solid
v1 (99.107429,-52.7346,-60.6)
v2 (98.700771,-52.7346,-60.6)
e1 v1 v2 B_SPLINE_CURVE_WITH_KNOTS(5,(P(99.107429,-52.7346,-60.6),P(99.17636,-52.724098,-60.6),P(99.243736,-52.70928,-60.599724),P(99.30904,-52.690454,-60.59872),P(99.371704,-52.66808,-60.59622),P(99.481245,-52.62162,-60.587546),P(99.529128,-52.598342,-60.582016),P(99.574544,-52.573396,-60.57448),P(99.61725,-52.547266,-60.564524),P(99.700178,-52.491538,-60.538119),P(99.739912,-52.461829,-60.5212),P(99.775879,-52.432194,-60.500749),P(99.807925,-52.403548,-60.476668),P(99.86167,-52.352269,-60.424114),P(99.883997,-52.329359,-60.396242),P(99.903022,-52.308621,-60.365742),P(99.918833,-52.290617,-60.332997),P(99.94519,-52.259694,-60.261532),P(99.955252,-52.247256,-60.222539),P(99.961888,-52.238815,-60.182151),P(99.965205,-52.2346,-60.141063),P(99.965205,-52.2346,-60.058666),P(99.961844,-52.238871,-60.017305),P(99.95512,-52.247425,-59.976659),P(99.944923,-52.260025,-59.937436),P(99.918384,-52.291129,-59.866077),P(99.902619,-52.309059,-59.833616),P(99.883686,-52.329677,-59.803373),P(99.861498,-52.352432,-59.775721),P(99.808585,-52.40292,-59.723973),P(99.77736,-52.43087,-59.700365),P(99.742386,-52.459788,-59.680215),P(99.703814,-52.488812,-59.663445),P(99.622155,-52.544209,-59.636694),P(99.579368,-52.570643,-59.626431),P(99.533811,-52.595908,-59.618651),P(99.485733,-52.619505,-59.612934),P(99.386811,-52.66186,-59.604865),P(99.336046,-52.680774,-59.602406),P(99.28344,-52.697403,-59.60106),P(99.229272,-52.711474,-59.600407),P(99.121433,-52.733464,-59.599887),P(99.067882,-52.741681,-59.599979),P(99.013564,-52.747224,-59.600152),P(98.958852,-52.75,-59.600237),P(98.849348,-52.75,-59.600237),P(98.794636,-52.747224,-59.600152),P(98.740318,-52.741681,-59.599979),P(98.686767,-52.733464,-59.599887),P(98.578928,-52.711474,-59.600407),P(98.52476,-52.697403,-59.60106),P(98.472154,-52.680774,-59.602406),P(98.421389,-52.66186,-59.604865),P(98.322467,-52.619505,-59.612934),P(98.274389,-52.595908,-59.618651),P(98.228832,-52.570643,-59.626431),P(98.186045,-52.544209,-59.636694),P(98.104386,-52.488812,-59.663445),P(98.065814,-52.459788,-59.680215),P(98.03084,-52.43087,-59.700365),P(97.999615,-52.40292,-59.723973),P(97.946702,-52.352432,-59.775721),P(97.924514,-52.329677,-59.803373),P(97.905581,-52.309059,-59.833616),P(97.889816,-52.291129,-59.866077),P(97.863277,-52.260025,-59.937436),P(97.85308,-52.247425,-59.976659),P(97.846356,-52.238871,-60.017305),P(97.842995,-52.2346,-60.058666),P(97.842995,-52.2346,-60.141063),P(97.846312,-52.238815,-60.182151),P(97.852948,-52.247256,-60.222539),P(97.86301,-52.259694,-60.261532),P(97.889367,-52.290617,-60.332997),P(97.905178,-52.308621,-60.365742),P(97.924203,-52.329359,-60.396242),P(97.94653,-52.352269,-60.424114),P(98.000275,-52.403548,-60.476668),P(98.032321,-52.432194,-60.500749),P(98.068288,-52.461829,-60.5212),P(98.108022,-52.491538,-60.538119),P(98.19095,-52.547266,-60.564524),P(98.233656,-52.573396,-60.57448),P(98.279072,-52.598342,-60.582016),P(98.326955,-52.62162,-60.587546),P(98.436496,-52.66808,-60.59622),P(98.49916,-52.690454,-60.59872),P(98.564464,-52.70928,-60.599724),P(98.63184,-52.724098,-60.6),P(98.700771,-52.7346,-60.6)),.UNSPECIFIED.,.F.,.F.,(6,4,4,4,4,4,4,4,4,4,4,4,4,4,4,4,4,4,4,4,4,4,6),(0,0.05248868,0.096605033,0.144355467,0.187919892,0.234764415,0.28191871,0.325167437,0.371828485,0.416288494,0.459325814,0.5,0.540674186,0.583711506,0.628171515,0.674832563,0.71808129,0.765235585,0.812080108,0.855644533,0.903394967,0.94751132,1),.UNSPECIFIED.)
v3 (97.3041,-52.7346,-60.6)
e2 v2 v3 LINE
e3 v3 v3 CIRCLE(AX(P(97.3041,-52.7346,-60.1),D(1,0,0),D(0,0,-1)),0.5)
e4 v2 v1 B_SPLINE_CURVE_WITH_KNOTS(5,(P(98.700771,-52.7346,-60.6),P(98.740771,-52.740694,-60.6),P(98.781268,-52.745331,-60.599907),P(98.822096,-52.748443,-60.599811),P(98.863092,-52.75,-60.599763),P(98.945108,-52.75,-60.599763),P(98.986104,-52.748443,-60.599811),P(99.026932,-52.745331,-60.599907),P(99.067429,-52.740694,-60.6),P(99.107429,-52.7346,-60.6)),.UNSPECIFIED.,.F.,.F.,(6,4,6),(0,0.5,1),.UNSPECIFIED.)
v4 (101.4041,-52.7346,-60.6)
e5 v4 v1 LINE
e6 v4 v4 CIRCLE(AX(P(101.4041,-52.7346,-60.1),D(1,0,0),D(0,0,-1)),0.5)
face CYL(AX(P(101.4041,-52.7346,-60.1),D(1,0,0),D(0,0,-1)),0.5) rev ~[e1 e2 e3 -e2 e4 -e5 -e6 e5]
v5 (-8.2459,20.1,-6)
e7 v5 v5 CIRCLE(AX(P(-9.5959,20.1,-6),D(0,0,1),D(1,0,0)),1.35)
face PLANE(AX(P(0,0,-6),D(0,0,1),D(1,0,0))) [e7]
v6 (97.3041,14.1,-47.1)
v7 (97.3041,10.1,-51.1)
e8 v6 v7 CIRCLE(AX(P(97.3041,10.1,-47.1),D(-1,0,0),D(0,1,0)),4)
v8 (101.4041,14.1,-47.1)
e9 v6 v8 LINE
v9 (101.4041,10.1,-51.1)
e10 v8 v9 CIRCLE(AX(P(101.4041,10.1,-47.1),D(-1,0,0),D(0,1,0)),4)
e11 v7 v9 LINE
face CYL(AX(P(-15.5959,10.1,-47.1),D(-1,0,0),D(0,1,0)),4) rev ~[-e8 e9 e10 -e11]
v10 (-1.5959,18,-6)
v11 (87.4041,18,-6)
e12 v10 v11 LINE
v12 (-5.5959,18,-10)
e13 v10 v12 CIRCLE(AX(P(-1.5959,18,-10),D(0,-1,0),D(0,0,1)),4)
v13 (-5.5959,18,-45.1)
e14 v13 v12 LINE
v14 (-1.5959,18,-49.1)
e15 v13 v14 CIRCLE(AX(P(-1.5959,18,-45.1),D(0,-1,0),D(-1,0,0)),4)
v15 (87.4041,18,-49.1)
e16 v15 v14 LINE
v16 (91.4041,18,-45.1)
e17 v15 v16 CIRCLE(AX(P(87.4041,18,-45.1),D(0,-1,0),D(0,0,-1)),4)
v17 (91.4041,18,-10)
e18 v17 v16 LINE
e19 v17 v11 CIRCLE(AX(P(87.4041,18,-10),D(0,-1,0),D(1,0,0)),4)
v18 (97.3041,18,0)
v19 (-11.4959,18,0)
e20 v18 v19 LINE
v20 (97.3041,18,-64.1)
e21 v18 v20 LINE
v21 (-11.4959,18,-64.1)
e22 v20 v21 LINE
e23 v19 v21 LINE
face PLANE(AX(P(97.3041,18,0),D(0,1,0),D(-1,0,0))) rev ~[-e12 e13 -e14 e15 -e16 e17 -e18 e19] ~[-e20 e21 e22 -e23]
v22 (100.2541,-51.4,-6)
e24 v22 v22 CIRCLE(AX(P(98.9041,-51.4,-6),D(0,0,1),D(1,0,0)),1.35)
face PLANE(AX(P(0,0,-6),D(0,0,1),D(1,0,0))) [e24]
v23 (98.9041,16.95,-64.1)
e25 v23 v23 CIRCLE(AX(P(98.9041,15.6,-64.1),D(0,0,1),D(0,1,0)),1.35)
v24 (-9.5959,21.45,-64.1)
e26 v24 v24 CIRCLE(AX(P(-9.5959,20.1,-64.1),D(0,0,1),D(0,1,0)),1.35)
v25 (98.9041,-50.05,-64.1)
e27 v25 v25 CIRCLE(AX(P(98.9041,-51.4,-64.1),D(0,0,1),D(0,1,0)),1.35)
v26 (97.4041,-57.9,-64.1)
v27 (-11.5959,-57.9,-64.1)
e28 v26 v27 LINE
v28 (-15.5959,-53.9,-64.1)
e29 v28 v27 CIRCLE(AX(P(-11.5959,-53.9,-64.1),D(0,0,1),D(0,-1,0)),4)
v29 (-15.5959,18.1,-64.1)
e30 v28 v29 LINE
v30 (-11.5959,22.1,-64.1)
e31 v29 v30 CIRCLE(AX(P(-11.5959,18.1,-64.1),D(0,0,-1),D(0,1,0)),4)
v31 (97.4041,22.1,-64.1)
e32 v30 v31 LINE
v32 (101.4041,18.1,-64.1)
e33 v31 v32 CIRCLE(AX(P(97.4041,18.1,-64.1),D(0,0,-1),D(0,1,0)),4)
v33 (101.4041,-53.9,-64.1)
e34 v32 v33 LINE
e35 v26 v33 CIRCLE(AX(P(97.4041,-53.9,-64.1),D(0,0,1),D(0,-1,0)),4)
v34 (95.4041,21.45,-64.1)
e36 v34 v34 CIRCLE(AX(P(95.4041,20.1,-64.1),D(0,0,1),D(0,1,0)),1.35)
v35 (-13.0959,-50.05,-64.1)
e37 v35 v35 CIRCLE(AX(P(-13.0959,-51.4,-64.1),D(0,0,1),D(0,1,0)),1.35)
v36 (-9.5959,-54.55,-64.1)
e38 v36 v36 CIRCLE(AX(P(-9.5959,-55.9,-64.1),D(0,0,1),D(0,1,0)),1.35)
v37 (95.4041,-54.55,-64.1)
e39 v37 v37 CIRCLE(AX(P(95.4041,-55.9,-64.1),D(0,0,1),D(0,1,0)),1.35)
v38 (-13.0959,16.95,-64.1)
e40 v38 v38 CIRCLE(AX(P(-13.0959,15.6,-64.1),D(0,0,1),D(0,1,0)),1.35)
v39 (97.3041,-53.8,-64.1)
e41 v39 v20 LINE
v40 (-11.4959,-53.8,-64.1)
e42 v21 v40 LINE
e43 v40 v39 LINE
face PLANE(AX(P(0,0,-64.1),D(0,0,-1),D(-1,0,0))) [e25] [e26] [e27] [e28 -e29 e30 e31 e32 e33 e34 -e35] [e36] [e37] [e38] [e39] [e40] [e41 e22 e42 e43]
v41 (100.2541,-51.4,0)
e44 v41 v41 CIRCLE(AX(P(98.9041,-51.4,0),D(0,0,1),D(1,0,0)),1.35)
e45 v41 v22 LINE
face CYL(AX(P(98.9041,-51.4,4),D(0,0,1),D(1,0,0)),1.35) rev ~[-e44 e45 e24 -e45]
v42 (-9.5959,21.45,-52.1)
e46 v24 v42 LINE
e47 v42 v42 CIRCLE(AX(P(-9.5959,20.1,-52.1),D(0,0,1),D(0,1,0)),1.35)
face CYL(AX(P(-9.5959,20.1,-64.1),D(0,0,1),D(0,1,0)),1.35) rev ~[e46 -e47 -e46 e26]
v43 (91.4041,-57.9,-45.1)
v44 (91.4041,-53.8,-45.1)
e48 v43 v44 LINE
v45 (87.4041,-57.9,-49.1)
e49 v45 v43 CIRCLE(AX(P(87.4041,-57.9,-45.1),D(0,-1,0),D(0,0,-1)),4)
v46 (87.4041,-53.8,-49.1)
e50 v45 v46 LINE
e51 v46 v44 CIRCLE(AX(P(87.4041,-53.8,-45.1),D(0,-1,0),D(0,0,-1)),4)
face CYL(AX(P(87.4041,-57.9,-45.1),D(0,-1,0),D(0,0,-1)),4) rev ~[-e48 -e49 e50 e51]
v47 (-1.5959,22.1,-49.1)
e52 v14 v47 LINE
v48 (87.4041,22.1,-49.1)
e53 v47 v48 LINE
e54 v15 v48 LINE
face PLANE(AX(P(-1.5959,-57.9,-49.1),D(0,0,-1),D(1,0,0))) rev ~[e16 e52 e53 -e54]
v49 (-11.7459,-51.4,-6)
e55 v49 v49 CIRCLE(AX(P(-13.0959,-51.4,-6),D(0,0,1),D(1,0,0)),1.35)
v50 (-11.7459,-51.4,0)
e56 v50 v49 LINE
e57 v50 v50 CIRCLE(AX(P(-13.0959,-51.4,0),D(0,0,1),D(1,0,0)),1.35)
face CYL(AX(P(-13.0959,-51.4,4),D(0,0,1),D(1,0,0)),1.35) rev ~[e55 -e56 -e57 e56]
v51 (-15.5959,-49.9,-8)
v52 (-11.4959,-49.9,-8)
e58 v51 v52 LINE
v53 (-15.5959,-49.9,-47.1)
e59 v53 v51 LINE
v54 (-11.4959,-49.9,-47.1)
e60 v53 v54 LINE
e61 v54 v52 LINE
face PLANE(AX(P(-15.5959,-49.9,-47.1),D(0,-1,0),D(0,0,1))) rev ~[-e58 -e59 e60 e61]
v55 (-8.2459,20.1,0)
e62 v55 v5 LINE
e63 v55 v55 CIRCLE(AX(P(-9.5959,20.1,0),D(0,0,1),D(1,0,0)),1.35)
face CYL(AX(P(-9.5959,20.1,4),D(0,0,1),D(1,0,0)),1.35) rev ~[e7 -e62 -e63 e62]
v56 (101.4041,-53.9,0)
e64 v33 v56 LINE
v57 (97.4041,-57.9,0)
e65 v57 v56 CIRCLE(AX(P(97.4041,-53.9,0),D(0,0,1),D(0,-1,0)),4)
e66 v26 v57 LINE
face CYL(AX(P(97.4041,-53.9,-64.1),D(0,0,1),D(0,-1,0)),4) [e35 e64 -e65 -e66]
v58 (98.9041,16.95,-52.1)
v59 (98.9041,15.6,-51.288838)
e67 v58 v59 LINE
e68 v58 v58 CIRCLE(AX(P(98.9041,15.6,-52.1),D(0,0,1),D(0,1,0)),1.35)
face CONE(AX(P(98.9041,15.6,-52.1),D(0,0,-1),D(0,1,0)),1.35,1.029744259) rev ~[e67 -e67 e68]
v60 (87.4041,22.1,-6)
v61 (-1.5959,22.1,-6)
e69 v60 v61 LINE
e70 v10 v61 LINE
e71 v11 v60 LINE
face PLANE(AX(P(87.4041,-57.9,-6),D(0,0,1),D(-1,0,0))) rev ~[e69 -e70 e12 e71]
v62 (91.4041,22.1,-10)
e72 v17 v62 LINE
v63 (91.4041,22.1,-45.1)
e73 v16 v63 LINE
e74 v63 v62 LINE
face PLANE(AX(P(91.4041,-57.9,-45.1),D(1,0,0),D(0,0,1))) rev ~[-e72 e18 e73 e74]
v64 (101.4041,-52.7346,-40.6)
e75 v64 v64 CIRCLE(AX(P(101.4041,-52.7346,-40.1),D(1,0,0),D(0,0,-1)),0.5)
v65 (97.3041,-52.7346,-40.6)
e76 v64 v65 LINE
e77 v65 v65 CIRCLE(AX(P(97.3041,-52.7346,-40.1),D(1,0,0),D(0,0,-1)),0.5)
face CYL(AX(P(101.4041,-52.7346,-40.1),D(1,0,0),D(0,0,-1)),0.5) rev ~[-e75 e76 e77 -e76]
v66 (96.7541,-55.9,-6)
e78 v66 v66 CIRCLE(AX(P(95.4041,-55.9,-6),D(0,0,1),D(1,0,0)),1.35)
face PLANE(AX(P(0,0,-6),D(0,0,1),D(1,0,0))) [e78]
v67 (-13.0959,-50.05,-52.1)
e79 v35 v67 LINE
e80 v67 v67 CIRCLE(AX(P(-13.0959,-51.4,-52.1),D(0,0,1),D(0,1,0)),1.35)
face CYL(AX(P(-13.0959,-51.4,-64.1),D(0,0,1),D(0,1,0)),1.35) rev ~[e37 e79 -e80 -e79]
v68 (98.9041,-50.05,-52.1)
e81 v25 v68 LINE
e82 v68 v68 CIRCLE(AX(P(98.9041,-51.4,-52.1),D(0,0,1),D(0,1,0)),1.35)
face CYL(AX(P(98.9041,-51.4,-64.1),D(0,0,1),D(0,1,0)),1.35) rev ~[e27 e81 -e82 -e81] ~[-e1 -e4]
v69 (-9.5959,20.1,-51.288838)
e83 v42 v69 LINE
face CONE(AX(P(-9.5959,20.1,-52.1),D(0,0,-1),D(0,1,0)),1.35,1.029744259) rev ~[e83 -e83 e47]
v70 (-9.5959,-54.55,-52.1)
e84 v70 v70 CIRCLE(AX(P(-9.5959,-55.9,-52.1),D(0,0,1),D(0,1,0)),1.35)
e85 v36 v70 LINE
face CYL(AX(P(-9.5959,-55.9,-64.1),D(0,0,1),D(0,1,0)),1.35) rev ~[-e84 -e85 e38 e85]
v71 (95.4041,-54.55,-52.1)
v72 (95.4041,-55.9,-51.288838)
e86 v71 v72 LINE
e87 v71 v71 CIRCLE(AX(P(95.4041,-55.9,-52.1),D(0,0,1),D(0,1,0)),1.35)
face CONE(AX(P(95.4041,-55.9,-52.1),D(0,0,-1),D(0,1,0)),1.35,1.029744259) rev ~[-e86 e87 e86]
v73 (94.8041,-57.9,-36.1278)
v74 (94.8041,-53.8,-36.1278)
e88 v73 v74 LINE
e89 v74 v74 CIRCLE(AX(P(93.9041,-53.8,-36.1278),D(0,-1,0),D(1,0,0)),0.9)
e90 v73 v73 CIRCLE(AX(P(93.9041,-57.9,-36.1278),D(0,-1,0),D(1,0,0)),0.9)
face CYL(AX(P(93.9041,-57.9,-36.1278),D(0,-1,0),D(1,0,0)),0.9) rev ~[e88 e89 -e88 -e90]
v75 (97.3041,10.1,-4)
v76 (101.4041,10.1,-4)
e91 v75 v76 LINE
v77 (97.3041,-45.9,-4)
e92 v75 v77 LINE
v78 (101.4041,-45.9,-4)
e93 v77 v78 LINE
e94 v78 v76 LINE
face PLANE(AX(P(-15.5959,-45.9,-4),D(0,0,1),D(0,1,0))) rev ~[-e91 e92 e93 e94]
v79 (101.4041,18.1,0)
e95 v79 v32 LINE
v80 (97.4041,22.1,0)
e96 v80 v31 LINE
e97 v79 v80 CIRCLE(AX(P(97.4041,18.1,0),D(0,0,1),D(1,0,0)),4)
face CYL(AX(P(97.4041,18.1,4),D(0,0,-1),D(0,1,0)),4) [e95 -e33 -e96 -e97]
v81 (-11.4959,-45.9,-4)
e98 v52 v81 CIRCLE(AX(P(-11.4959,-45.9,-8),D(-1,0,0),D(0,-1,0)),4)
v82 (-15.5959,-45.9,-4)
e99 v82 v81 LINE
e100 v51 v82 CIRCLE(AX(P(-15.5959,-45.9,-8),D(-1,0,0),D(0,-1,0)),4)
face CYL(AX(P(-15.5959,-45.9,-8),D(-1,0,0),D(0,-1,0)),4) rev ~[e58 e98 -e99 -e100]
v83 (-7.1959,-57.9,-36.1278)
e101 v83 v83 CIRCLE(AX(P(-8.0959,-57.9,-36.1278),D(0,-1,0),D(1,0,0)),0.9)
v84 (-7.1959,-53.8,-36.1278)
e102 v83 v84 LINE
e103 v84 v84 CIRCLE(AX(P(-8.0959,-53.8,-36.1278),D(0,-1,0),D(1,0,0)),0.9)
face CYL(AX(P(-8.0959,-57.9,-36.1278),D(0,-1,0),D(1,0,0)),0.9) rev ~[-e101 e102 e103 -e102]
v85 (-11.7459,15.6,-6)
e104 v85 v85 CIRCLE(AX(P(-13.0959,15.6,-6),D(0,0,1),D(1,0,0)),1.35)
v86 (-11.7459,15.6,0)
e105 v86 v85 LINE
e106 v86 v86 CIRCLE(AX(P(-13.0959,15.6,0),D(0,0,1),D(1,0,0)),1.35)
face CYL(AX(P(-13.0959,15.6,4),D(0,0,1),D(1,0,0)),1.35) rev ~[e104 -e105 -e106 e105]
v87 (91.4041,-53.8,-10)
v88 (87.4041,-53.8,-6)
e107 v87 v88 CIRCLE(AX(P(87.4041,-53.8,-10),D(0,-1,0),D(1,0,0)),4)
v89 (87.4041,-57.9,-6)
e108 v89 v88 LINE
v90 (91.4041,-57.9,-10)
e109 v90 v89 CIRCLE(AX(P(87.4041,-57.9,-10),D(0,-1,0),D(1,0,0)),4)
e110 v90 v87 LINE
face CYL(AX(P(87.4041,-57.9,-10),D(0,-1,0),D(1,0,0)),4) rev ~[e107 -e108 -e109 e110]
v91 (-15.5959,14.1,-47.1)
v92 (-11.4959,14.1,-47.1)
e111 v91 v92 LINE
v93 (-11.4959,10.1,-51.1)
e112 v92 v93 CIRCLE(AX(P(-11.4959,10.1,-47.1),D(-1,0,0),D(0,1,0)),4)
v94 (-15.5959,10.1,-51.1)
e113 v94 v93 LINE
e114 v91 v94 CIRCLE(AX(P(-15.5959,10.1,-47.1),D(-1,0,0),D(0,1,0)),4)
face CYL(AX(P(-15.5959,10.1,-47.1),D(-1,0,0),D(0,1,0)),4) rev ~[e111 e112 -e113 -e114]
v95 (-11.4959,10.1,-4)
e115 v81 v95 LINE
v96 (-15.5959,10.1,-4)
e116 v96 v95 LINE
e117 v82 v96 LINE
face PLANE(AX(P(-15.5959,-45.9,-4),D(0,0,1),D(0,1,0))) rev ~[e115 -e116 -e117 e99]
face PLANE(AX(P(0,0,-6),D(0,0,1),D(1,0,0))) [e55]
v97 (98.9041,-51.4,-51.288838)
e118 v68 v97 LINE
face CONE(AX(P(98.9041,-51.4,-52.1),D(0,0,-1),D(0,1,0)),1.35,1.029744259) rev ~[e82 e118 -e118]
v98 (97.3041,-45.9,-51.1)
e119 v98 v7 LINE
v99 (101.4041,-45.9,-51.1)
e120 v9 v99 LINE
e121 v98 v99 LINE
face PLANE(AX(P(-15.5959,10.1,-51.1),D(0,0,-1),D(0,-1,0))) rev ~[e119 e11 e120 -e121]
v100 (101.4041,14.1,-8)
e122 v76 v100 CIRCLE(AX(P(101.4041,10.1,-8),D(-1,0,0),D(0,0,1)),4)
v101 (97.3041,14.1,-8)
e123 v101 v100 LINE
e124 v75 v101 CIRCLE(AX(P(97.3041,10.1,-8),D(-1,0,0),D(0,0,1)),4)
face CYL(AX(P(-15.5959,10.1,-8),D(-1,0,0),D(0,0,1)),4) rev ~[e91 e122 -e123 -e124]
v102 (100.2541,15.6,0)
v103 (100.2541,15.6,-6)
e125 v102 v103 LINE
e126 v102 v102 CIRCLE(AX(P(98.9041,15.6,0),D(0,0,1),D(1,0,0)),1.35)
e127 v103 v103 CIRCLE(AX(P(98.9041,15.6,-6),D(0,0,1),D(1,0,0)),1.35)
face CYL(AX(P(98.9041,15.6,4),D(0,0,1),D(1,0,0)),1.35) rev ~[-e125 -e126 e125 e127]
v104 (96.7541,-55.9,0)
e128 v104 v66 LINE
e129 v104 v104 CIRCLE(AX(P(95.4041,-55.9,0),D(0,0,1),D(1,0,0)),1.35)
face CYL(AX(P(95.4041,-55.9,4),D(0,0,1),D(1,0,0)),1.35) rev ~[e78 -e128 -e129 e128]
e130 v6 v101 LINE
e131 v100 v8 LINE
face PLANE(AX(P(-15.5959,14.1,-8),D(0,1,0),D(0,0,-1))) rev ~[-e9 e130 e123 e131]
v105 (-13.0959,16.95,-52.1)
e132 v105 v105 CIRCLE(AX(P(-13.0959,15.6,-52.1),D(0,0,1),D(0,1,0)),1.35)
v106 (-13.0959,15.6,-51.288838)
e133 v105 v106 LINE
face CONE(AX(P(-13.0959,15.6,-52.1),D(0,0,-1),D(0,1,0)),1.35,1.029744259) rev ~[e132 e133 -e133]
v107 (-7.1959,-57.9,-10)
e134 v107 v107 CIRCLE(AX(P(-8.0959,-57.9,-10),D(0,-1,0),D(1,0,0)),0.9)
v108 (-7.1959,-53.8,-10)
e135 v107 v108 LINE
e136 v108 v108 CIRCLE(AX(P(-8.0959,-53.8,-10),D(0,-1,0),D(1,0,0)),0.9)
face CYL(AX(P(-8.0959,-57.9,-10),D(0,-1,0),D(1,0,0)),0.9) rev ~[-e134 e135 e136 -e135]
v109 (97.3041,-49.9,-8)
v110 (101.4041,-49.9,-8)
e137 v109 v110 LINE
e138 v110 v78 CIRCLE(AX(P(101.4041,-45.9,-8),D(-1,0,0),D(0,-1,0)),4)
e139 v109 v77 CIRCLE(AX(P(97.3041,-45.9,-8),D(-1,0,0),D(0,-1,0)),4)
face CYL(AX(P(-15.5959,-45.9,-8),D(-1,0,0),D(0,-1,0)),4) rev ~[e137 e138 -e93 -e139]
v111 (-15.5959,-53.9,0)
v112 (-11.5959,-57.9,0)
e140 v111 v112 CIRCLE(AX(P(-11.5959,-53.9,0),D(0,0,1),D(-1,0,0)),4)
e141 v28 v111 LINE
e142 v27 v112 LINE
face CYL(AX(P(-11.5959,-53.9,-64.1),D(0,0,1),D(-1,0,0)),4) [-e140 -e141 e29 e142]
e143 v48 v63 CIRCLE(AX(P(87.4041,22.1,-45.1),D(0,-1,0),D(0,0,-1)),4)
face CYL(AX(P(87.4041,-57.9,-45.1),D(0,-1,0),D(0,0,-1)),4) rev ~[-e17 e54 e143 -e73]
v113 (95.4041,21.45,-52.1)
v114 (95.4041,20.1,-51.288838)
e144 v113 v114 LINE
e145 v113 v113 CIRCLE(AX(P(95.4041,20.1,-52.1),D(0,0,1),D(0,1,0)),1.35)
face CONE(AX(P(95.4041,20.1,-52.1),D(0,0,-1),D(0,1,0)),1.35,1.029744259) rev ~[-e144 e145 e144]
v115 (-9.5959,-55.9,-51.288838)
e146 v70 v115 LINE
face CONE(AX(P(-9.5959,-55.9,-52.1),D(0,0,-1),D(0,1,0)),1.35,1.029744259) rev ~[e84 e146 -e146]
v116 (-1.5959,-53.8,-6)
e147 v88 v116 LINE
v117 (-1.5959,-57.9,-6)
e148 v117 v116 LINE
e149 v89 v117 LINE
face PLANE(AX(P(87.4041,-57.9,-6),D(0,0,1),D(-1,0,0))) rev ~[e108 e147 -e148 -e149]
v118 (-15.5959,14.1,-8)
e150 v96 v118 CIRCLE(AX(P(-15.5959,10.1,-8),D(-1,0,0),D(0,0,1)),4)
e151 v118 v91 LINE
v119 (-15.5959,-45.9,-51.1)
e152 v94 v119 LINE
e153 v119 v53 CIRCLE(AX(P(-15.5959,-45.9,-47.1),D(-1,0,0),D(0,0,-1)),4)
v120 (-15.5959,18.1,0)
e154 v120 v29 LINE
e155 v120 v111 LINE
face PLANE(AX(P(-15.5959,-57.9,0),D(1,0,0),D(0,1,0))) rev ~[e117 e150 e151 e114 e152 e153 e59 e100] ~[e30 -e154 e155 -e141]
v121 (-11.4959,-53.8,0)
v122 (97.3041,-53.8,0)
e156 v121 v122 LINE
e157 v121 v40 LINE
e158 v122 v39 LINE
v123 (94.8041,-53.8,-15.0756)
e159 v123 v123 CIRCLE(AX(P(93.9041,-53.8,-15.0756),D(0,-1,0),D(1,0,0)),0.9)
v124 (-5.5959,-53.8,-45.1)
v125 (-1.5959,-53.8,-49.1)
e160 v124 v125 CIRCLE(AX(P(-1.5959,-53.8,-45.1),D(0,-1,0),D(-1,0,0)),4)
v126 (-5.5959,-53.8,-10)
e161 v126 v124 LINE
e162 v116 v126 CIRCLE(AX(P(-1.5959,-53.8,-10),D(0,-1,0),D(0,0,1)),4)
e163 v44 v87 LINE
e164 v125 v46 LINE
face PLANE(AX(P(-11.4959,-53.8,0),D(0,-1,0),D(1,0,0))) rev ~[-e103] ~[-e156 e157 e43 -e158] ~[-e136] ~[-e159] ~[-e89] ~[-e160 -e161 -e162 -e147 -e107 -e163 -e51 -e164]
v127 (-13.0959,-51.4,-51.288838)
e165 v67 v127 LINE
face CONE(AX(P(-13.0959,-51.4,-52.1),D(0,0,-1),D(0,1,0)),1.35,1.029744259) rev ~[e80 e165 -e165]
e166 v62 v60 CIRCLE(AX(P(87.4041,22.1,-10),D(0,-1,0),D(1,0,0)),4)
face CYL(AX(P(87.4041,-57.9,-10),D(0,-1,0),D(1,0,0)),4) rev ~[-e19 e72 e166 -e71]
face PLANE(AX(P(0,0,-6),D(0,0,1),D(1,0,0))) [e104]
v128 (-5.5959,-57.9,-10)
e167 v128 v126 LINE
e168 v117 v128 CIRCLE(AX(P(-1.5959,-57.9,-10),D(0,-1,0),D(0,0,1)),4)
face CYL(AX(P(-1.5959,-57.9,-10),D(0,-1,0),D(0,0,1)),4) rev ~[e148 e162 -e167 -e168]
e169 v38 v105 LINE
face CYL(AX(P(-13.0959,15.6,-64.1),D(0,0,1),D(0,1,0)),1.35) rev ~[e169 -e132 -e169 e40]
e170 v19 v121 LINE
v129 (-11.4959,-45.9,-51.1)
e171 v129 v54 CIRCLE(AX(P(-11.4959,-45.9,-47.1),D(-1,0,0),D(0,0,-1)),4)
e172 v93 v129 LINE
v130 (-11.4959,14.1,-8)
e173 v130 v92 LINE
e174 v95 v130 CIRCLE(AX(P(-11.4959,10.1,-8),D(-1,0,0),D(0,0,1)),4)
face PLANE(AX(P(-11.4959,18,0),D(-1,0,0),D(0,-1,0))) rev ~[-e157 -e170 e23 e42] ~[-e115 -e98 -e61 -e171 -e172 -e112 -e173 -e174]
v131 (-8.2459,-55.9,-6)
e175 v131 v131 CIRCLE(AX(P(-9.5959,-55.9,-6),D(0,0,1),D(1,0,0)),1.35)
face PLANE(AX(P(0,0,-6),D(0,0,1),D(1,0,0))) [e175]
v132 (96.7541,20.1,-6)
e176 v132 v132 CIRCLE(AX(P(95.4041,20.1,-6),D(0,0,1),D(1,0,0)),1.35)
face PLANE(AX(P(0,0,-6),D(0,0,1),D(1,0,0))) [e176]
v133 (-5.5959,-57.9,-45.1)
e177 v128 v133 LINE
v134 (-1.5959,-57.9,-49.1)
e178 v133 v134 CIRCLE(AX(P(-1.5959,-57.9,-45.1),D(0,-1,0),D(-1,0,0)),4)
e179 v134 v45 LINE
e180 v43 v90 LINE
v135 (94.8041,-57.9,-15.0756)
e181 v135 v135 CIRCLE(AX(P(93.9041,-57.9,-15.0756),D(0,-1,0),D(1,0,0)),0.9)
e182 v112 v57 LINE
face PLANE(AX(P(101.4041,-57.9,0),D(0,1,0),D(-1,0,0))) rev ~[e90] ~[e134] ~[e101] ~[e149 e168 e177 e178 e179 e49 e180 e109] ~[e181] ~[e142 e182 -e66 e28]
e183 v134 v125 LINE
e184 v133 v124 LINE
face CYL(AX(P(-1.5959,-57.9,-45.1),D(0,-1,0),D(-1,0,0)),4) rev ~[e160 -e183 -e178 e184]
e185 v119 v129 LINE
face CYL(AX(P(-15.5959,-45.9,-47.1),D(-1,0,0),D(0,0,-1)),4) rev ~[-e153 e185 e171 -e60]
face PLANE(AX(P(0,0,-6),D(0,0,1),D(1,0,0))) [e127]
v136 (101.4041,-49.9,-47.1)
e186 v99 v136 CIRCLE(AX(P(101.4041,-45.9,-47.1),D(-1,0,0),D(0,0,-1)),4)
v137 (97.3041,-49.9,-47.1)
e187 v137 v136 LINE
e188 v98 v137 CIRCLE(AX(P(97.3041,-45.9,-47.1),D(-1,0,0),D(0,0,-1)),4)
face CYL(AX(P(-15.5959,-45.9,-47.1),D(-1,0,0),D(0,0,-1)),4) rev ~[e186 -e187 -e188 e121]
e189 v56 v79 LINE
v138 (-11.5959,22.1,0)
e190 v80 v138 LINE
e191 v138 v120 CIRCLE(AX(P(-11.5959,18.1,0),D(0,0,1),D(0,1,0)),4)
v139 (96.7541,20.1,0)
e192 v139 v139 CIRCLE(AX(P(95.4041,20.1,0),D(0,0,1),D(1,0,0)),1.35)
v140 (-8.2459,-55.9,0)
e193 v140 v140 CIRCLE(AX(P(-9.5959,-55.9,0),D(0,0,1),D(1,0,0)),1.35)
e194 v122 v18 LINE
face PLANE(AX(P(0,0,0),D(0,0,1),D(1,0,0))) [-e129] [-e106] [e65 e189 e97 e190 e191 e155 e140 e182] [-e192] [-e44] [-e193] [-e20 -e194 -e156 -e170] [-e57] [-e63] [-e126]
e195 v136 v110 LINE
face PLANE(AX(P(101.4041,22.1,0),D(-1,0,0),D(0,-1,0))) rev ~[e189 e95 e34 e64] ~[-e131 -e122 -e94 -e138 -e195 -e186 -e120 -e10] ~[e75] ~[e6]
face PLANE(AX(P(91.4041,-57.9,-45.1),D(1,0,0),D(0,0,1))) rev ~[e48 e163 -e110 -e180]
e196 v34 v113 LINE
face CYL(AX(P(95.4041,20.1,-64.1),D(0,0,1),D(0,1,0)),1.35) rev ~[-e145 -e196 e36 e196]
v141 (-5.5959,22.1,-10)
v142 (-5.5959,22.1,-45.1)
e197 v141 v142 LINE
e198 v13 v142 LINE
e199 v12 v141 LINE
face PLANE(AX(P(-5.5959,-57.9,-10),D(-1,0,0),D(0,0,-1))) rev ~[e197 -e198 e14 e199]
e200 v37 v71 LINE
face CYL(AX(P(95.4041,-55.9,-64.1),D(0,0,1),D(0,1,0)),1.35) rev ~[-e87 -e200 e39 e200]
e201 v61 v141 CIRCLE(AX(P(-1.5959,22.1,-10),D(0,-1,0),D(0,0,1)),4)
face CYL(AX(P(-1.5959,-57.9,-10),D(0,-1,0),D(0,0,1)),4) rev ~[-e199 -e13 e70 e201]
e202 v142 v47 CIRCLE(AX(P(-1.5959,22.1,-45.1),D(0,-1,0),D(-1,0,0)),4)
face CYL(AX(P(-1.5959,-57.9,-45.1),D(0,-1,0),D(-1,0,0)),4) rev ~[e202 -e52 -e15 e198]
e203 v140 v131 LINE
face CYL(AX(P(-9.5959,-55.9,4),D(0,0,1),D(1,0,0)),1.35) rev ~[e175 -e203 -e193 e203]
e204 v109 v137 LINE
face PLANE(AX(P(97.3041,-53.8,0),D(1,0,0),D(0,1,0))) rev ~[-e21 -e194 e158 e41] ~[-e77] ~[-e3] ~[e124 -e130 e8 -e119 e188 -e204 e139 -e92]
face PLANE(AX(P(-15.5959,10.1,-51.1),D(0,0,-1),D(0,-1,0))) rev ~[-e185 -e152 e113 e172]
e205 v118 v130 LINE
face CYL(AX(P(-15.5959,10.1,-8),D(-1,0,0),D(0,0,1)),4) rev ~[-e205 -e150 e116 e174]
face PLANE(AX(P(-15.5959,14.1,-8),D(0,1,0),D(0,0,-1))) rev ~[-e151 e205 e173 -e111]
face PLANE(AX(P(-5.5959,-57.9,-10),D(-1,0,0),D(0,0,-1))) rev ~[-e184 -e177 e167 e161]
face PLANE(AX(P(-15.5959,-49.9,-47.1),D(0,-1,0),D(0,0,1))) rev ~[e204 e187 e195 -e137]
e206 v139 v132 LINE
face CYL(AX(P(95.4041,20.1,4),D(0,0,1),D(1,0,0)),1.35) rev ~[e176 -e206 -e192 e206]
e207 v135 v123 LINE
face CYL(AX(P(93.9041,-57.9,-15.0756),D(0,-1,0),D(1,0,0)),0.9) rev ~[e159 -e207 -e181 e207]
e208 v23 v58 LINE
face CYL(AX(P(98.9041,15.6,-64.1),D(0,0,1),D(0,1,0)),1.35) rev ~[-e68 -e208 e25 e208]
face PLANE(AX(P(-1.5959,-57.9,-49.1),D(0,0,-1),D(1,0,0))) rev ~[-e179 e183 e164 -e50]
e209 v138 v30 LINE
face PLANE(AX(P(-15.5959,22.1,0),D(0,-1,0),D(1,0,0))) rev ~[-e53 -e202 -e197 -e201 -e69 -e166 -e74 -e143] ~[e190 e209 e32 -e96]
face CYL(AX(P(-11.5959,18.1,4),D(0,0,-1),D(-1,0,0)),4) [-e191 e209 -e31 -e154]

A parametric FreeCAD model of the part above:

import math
import FreeCAD as App
import Part
import Sketcher

V = App.Vector
Q = App.Units.Quantity


def edges_at(feature, points):
    """Names of the edges that pass closest to the given points."""
    edges = feature.Shape.Edges
    near = lambda p: min(range(len(edges)), key=lambda i: edges[i].distToShape(Part.Vertex(*p))[0])
    return sorted({f"Edge{near(p) + 1}" for p in points})


def add_polygon(sketch, points):
    """Adds a closed chain of lines whose ends are joined by coincident constraints."""
    first, n = sketch.GeometryCount, len(points)
    for a, b in zip(points, points[1:] + points[:1]):
        sketch.addGeometry(Part.LineSegment(App.Vector(*a, 0), App.Vector(*b, 0)), False)
    for i in range(n):
        sketch.addConstraint(Sketcher.Constraint("Coincident", first + i, 2, first + (i + 1) % n, 1))

doc = App.newDocument("Part")
params = doc.addObject("Spreadsheet::Sheet", "Params")
for row, (alias, value) in enumerate([
    ("sketch1_height", "80 mm"),
    ("sketch1_width", "117 mm"),
    ("pad1_length", "4 mm"),
    ("sketch2_height", "71.8 mm"),
    ("sketch2_width", "117 mm"),
    ("pad2_length", "64.1 mm"),
    ("sketch3_radius", "4 mm"),
    ("sketch3_width", "89 mm"),
    ("sketch3_height", "35.1 mm"),
    ("sketch4_radius", "4 mm"),
    ("sketch4_width", "56 mm"),
    ("sketch4_height", "39.1 mm"),
    ("fillet_radius", "4 mm"),
    ("sketch5_diameter", "2.7 mm"),
    ("hole_diameter", "2.7 mm"),
    ("hole_depth", "12 mm"),
    ("sketch6_diameter", "2.7 mm"),
    ("pocket3_length", "10 mm"),
    ("sketch7_diameter", "1.8 mm"),
    ("pocket4_length", "10 mm"),
    ("sketch8_radius", "4 mm"),
    ("sketch8_width", "109 mm"),
    ("sketch8_height", "72 mm"),
    ("pocket5_length", "4 mm"),
    ("sketch9_diameter", "1 mm"),
    ("pocket6_length", "10 mm"),
], start=1):
    params.set(f"A{row}", alias)
    params.set(f"B{row}", "=" + value)
    params.setAlias(f"B{row}", alias)

body = doc.addObject("PartDesign::Body", "Body")

sketch1 = body.newObject("Sketcher::SketchObject", "Sketch")
sketch1.AttachmentSupport = (doc.getObject("XY_Plane"), [""])
sketch1.MapMode = "FlatFace"
add_polygon(sketch1, [(101, 22), (-16, 22), (-16, -58), (101, -58)])
sketch1.addConstraint([
    Sketcher.Constraint("Horizontal", 0),
    Sketcher.Constraint("Vertical", 1),
    Sketcher.Constraint("Horizontal", 2),
    Sketcher.Constraint("Vertical", 3),
    Sketcher.Constraint("DistanceY", 1, 2, 1, 1, Q("80 mm")),
    Sketcher.Constraint("DistanceX", 0, 2, 0, 1, Q("117 mm")),
    Sketcher.Constraint("DistanceY", -1, 1, 0, 2, Q("22.1 mm")),
    Sketcher.Constraint("DistanceX", 0, 2, -1, 1, Q("15.596 mm")),
])
sketch1.setExpression("Constraints[8]", "Params.sketch1_height")
sketch1.setExpression("Constraints[9]", "Params.sketch1_width")
pad1 = body.newObject("PartDesign::Pad", "Pad")
pad1.Profile = sketch1
pad1.setExpression("Length", "Params.pad1_length")

sketch2 = body.newObject("Sketcher::SketchObject", "Sketch001")
sketch2.AttachmentSupport = (doc.getObject("XY_Plane"), [""])
sketch2.MapMode = "FlatFace"
add_polygon(sketch2, [(-16, -58), (-16, 22), (101, 22), (101, -58)])
add_polygon(sketch2, [(-11, -54), (97, -54), (97, 18), (-11, 18)])
sketch2.addConstraint([
    Sketcher.Constraint("Vertical", 0),
    Sketcher.Constraint("Horizontal", 1),
    Sketcher.Constraint("Vertical", 2),
    Sketcher.Constraint("Horizontal", 3),
    Sketcher.Constraint("Horizontal", 4),
    Sketcher.Constraint("Vertical", 5),
    Sketcher.Constraint("Horizontal", 6),
    Sketcher.Constraint("Vertical", 7),
    Sketcher.Constraint("DistanceY", 5, 1, 5, 2, Q("71.8 mm")),
    Sketcher.Constraint("DistanceX", 4, 2, 2, 2, Q("4.1 mm")),
    Sketcher.Constraint("DistanceY", 2, 2, 4, 2, Q("4.1 mm")),
    Sketcher.Constraint("DistanceY", 5, 2, 1, 2, Q("4.1 mm")),
    Sketcher.Constraint("DistanceX", 0, 2, 6, 2, Q("4.1 mm")),
    Sketcher.Constraint("DistanceX", 1, 1, 1, 2, Q("117 mm")),
    Sketcher.Constraint("DistanceY", -1, 1, 5, 2, Q("18 mm")),
    Sketcher.Constraint("DistanceX", 0, 2, -1, 1, Q("15.596 mm")),
])
sketch2.setExpression("Constraints[16]", "Params.sketch2_height")
sketch2.setExpression("Constraints[21]", "Params.sketch2_width")
pad2 = body.newObject("PartDesign::Pad", "Pad001")
pad2.Profile = sketch2
pad2.setExpression("Length", "Params.pad2_length")
pad2.Reversed = True

sketch3 = body.newObject("Sketcher::SketchObject", "Sketch002")
sketch3.AttachmentSupport = (doc.getObject("XZ_Plane"), [""])
sketch3.MapMode = "FlatFace"
sketch3.AttachmentOffset = App.Placement(V(0, 0, 57.9), App.Rotation())
sketch3.addGeometry([
    Part.ArcOfCircle(Part.Circle(V(87.4, -45.1, 0), V(0, 0, 1), 4), math.radians(-90), math.radians(0)),
    Part.LineSegment(V(91.4, -45.1, 0), V(91.4, -10, 0)),
    Part.ArcOfCircle(Part.Circle(V(87.4, -10, 0), V(0, 0, 1), 4), math.radians(0), math.radians(90)),
    Part.LineSegment(V(87.4, -6, 0), V(-1.6, -6, 0)),
    Part.ArcOfCircle(Part.Circle(V(-1.6, -10, 0), V(0, 0, 1), 4), math.radians(90), math.radians(180)),
    Part.LineSegment(V(-5.6, -10, 0), V(-5.6, -45.1, 0)),
    Part.ArcOfCircle(Part.Circle(V(-1.6, -45.1, 0), V(0, 0, 1), 4), math.radians(180), math.radians(270)),
    Part.LineSegment(V(-1.6, -49.1, 0), V(87.4, -49.1, 0)),
], False)
sketch3.addConstraint([
    Sketcher.Constraint("Tangent", 0, 2, 1, 1),
    Sketcher.Constraint("Tangent", 1, 2, 2, 1),
    Sketcher.Constraint("Tangent", 2, 2, 3, 1),
    Sketcher.Constraint("Tangent", 3, 2, 4, 1),
    Sketcher.Constraint("Tangent", 4, 2, 5, 1),
    Sketcher.Constraint("Tangent", 5, 2, 6, 1),
    Sketcher.Constraint("Tangent", 6, 2, 7, 1),
    Sketcher.Constraint("Tangent", 7, 2, 0, 1),
    Sketcher.Constraint("Vertical", 1),
    Sketcher.Constraint("Horizontal", 3),
    Sketcher.Constraint("Vertical", 5),
    Sketcher.Constraint("Horizontal", 7),
    Sketcher.Constraint("Equal", 0, 2),
    Sketcher.Constraint("Equal", 2, 4),
    Sketcher.Constraint("Equal", 4, 6),
    Sketcher.Constraint("Radius", 0, Q("4 mm")),
    Sketcher.Constraint("DistanceX", 3, 2, 3, 1, Q("89 mm")),
    Sketcher.Constraint("DistanceY", 1, 1, 1, 2, Q("35.1 mm")),
    Sketcher.Constraint("DistanceY", 2, 3, -1, 1, Q("10 mm")),
    Sketcher.Constraint("DistanceX", -1, 1, 0, 3, Q("87.404 mm")),
])
sketch3.setExpression("Constraints[15]", "Params.sketch3_radius")
sketch3.setExpression("Constraints[16]", "Params.sketch3_width")
sketch3.setExpression("Constraints[17]", "Params.sketch3_height")
pocket1 = body.newObject("PartDesign::Pocket", "Pocket")
pocket1.Profile = sketch3
pocket1.Type = "ThroughAll"

sketch4 = body.newObject("Sketcher::SketchObject", "Sketch003")
sketch4.AttachmentSupport = (doc.getObject("YZ_Plane"), [""])
sketch4.MapMode = "FlatFace"
sketch4.AttachmentOffset = App.Placement(V(0, 0, -15.5959), App.Rotation())
sketch4.addGeometry([
    Part.ArcOfCircle(Part.Circle(V(-45.9, -47.1, 0), V(0, 0, 1), 4), math.radians(180), math.radians(270)),
    Part.LineSegment(V(-49.9, -47.1, 0), V(-49.9, -8, 0)),
    Part.ArcOfCircle(Part.Circle(V(-45.9, -8, 0), V(0, 0, 1), 4), math.radians(90), math.radians(180)),
    Part.LineSegment(V(-45.9, -4, 0), V(10.1, -4, 0)),
    Part.ArcOfCircle(Part.Circle(V(10.1, -8, 0), V(0, 0, 1), 4), math.radians(0), math.radians(90)),
    Part.LineSegment(V(14.1, -8, 0), V(14.1, -47.1, 0)),
    Part.ArcOfCircle(Part.Circle(V(10.1, -47.1, 0), V(0, 0, 1), 4), math.radians(-90), math.radians(0)),
    Part.LineSegment(V(10.1, -51.1, 0), V(-45.9, -51.1, 0)),
], False)
sketch4.addConstraint([
    Sketcher.Constraint("Tangent", 0, 1, 1, 1),
    Sketcher.Constraint("Tangent", 1, 2, 2, 2),
    Sketcher.Constraint("Tangent", 2, 1, 3, 1),
    Sketcher.Constraint("Tangent", 3, 2, 4, 2),
    Sketcher.Constraint("Tangent", 4, 1, 5, 1),
    Sketcher.Constraint("Tangent", 5, 2, 6, 2),
    Sketcher.Constraint("Tangent", 6, 1, 7, 1),
    Sketcher.Constraint("Tangent", 7, 2, 0, 2),
    Sketcher.Constraint("Vertical", 1),
    Sketcher.Constraint("Horizontal", 3),
    Sketcher.Constraint("Vertical", 5),
    Sketcher.Constraint("Horizontal", 7),
    Sketcher.Constraint("Equal", 0, 2),
    Sketcher.Constraint("Equal", 2, 4),
    Sketcher.Constraint("Equal", 4, 6),
    Sketcher.Constraint("Radius", 0, Q("4 mm")),
    Sketcher.Constraint("DistanceY", 2, 3, -1, 1, Q("8 mm")),
    Sketcher.Constraint("DistanceX", 3, 1, 3, 2, Q("56 mm")),
    Sketcher.Constraint("DistanceY", 1, 1, 1, 2, Q("39.1 mm")),
    Sketcher.Constraint("DistanceX", 0, 3, -1, 1, Q("45.9 mm")),
])
sketch4.setExpression("Constraints[15]", "Params.sketch4_radius")
sketch4.setExpression("Constraints[17]", "Params.sketch4_width")
sketch4.setExpression("Constraints[18]", "Params.sketch4_height")
pocket2 = body.newObject("PartDesign::Pocket", "Pocket001")
pocket2.Profile = sketch4
pocket2.Type = "ThroughAll"
pocket2.Reversed = True
doc.recompute()

fillet = body.newObject("PartDesign::Fillet", "Fillet")
fillet.Base = (pocket2, edges_at(pocket2, [
    (-15.596, -57.9, -30.05),
    (-15.596, 22.1, -30.05),
    (101.404, 22.1, -30.05),
    (101.404, -57.9, -30.05),
]))
fillet.setExpression("Radius", "Params.fillet_radius")

sketch5 = body.newObject("Sketcher::SketchObject", "Sketch004")
sketch5.AttachmentSupport = (doc.getObject("XY_Plane"), [""])
sketch5.MapMode = "FlatFace"
sketch5.AttachmentOffset = App.Placement(V(0, 0, -64.1), App.Rotation())
sketch5.addGeometry([
    Part.Circle(V(-9.6, 20.1, 0), V(0, 0, 1), 1.4),
    Part.Circle(V(-13.1, 15.6, 0), V(0, 0, 1), 1.4),
    Part.Circle(V(-13.1, -51.4, 0), V(0, 0, 1), 1.4),
    Part.Circle(V(-9.6, -55.9, 0), V(0, 0, 1), 1.4),
    Part.Circle(V(95.4, -55.9, 0), V(0, 0, 1), 1.4),
    Part.Circle(V(98.9, -51.4, 0), V(0, 0, 1), 1.4),
    Part.Circle(V(98.9, 15.6, 0), V(0, 0, 1), 1.4),
    Part.Circle(V(95.4, 20.1, 0), V(0, 0, 1), 1.4),
], False)
sketch5.addConstraint([
    Sketcher.Constraint("Equal", 0, 1),
    Sketcher.Constraint("Equal", 1, 2),
    Sketcher.Constraint("Equal", 2, 3),
    Sketcher.Constraint("Equal", 3, 4),
    Sketcher.Constraint("Equal", 4, 5),
    Sketcher.Constraint("Equal", 5, 6),
    Sketcher.Constraint("Equal", 6, 7),
    Sketcher.Constraint("Horizontal", 3, 3, 4, 3),
    Sketcher.Constraint("Horizontal", 2, 3, 5, 3),
    Sketcher.Constraint("Horizontal", 1, 3, 6, 3),
    Sketcher.Constraint("Horizontal", 0, 3, 7, 3),
    Sketcher.Constraint("Vertical", 1, 3, 2, 3),
    Sketcher.Constraint("Vertical", 0, 3, 3, 3),
    Sketcher.Constraint("Vertical", 5, 3, 6, 3),
    Sketcher.Constraint("Vertical", 4, 3, 7, 3),
    Sketcher.Constraint("Diameter", 0, Q("2.7 mm")),
    Sketcher.Constraint("DistanceY", 2, 3, 1, 3, Q("67 mm")),
    Sketcher.Constraint("DistanceY", 3, 3, 0, 3, Q("76 mm")),
    Sketcher.Constraint("DistanceX", 3, 3, 4, 3, Q("105 mm")),
    Sketcher.Constraint("DistanceX", 2, 3, 5, 3, Q("112 mm")),
    Sketcher.Constraint("DistanceY", -1, 1, 0, 3, Q("20.1 mm")),
    Sketcher.Constraint("DistanceY", -1, 1, 1, 3, Q("15.6 mm")),
    Sketcher.Constraint("DistanceX", 1, 3, 0, 3, Q("3.5 mm")),
    Sketcher.Constraint("DistanceX", 0, 3, -1, 1, Q("9.596 mm")),
])
sketch5.setExpression("Constraints[15]", "Params.sketch5_diameter")
doc.recompute()
hole = body.newObject("PartDesign::Hole", "Hole")
hole.Profile = sketch5
hole.ThreadType = "None"
hole.setExpression("Diameter", "Params.hole_diameter")
hole.DepthType = "Dimension"
hole.setExpression("Depth", "Params.hole_depth")
hole.DrillPoint = "Angled"
hole.DrillPointAngle = 118
hole.Reversed = True

sketch6 = body.newObject("Sketcher::SketchObject", "Sketch005")
sketch6.AttachmentSupport = (doc.getObject("XY_Plane"), [""])
sketch6.MapMode = "FlatFace"
sketch6.AttachmentOffset = App.Placement(V(0, 0, 4), App.Rotation())
sketch6.addGeometry([
    Part.Circle(V(-13.1, -51.4, 0), V(0, 0, 1), 1.4),
    Part.Circle(V(-9.6, -55.9, 0), V(0, 0, 1), 1.4),
    Part.Circle(V(95.4, -55.9, 0), V(0, 0, 1), 1.4),
    Part.Circle(V(98.9, -51.4, 0), V(0, 0, 1), 1.4),
    Part.Circle(V(98.9, 15.6, 0), V(0, 0, 1), 1.4),
    Part.Circle(V(95.4, 20.1, 0), V(0, 0, 1), 1.4),
    Part.Circle(V(-9.6, 20.1, 0), V(0, 0, 1), 1.4),
    Part.Circle(V(-13.1, 15.6, 0), V(0, 0, 1), 1.4),
], False)
sketch6.addConstraint([
    Sketcher.Constraint("Equal", 0, 1),
    Sketcher.Constraint("Equal", 1, 2),
    Sketcher.Constraint("Equal", 2, 3),
    Sketcher.Constraint("Equal", 3, 4),
    Sketcher.Constraint("Equal", 4, 5),
    Sketcher.Constraint("Equal", 5, 6),
    Sketcher.Constraint("Equal", 6, 7),
    Sketcher.Constraint("Horizontal", 1, 3, 2, 3),
    Sketcher.Constraint("Horizontal", 0, 3, 3, 3),
    Sketcher.Constraint("Horizontal", 5, 3, 6, 3),
    Sketcher.Constraint("Horizontal", 4, 3, 7, 3),
    Sketcher.Constraint("Vertical", 3, 3, 4, 3),
    Sketcher.Constraint("Vertical", 2, 3, 5, 3),
    Sketcher.Constraint("Vertical", 1, 3, 6, 3),
    Sketcher.Constraint("Vertical", 0, 3, 7, 3),
    Sketcher.Constraint("Diameter", 0, Q("2.7 mm")),
    Sketcher.Constraint("DistanceX", 1, 3, 2, 3, Q("105 mm")),
    Sketcher.Constraint("DistanceX", 0, 3, 3, 3, Q("112 mm")),
    Sketcher.Constraint("DistanceY", 3, 3, 4, 3, Q("67 mm")),
    Sketcher.Constraint("DistanceY", 2, 3, 5, 3, Q("76 mm")),
    Sketcher.Constraint("DistanceY", 0, 3, -1, 1, Q("51.4 mm")),
    Sketcher.Constraint("DistanceY", 1, 3, -1, 1, Q("55.9 mm")),
    Sketcher.Constraint("DistanceX", 0, 3, 1, 3, Q("3.5 mm")),
    Sketcher.Constraint("DistanceX", 0, 3, -1, 1, Q("13.096 mm")),
])
sketch6.setExpression("Constraints[15]", "Params.sketch6_diameter")
pocket3 = body.newObject("PartDesign::Pocket", "Pocket002")
pocket3.Profile = sketch6
pocket3.setExpression("Length", "Params.pocket3_length")

sketch7 = body.newObject("Sketcher::SketchObject", "Sketch006")
sketch7.AttachmentSupport = (doc.getObject("XZ_Plane"), [""])
sketch7.MapMode = "FlatFace"
sketch7.AttachmentOffset = App.Placement(V(0, 0, 57.9), App.Rotation())
sketch7.addGeometry([
    Part.Circle(V(93.9, -15.1, 0), V(0, 0, 1), 0.9),
    Part.Circle(V(93.9, -36.1, 0), V(0, 0, 1), 0.9),
    Part.Circle(V(-8.1, -36.1, 0), V(0, 0, 1), 0.9),
    Part.Circle(V(-8.1, -10, 0), V(0, 0, 1), 0.9),
], False)
sketch7.addConstraint([
    Sketcher.Constraint("Equal", 0, 1),
    Sketcher.Constraint("Equal", 1, 2),
    Sketcher.Constraint("Equal", 2, 3),
    Sketcher.Constraint("Horizontal", 1, 3, 2, 3),
    Sketcher.Constraint("Vertical", 0, 3, 1, 3),
    Sketcher.Constraint("Vertical", 2, 3, 3, 3),
    Sketcher.Constraint("Diameter", 0, Q("1.8 mm")),
    Sketcher.Constraint("DistanceY", 3, 3, -1, 1, Q("10 mm")),
    Sketcher.Constraint("DistanceX", 2, 3, 1, 3, Q("102 mm")),
    Sketcher.Constraint("DistanceX", -1, 1, 0, 3, Q("93.904 mm")),
    Sketcher.Constraint("DistanceY", 0, 3, -1, 1, Q("15.0756 mm")),
    Sketcher.Constraint("DistanceY", 1, 3, -1, 1, Q("36.1278 mm")),
])
sketch7.setExpression("Constraints[6]", "Params.sketch7_diameter")
pocket4 = body.newObject("PartDesign::Pocket", "Pocket003")
pocket4.Profile = sketch7
pocket4.setExpression("Length", "Params.pocket4_length")

sketch8 = body.newObject("Sketcher::SketchObject", "Sketch007")
sketch8.AttachmentSupport = (doc.getObject("XY_Plane"), [""])
sketch8.MapMode = "FlatFace"
sketch8.AttachmentOffset = App.Placement(V(0, 0, 4), App.Rotation())
sketch8.addGeometry([
    Part.LineSegment(V(-11.6, -57.9, 0), V(97.4, -57.9, 0)),
    Part.ArcOfCircle(Part.Circle(V(97.4, -53.9, 0), V(0, 0, 1), 4), math.radians(-90), math.radians(0)),
    Part.LineSegment(V(101.4, -53.9, 0), V(101.4, 18.1, 0)),
    Part.ArcOfCircle(Part.Circle(V(97.4, 18.1, 0), V(0, 0, 1), 4), math.radians(0), math.radians(90)),
    Part.LineSegment(V(97.4, 22.1, 0), V(-11.6, 22.1, 0)),
    Part.ArcOfCircle(Part.Circle(V(-11.6, 18.1, 0), V(0, 0, 1), 4), math.radians(90), math.radians(180)),
    Part.LineSegment(V(-15.6, 18.1, 0), V(-15.6, -53.9, 0)),
    Part.ArcOfCircle(Part.Circle(V(-11.6, -53.9, 0), V(0, 0, 1), 4), math.radians(180), math.radians(270)),
], False)
sketch8.addConstraint([
    Sketcher.Constraint("Tangent", 0, 2, 1, 1),
    Sketcher.Constraint("Tangent", 1, 2, 2, 1),
    Sketcher.Constraint("Tangent", 2, 2, 3, 1),
    Sketcher.Constraint("Tangent", 3, 2, 4, 1),
    Sketcher.Constraint("Tangent", 4, 2, 5, 1),
    Sketcher.Constraint("Tangent", 5, 2, 6, 1),
    Sketcher.Constraint("Tangent", 6, 2, 7, 1),
    Sketcher.Constraint("Tangent", 7, 2, 0, 1),
    Sketcher.Constraint("Horizontal", 0),
    Sketcher.Constraint("Vertical", 2),
    Sketcher.Constraint("Horizontal", 4),
    Sketcher.Constraint("Vertical", 6),
    Sketcher.Constraint("Equal", 1, 3),
    Sketcher.Constraint("Equal", 3, 5),
    Sketcher.Constraint("Equal", 5, 7),
    Sketcher.Constraint("Radius", 1, Q("4 mm")),
    Sketcher.Constraint("DistanceX", 0, 1, 0, 2, Q("109 mm")),
    Sketcher.Constraint("DistanceY", 2, 1, 2, 2, Q("72 mm")),
    Sketcher.Constraint("DistanceY", 1, 3, -1, 1, Q("53.9 mm")),
    Sketcher.Constraint("DistanceX", -1, 1, 1, 3, Q("97.404 mm")),
])
sketch8.setExpression("Constraints[15]", "Params.sketch8_radius")
sketch8.setExpression("Constraints[16]", "Params.sketch8_width")
sketch8.setExpression("Constraints[17]", "Params.sketch8_height")
pocket5 = body.newObject("PartDesign::Pocket", "Pocket004")
pocket5.Profile = sketch8
pocket5.setExpression("Length", "Params.pocket5_length")

sketch9 = body.newObject("Sketcher::SketchObject", "Sketch008")
sketch9.AttachmentSupport = (doc.getObject("YZ_Plane"), [""])
sketch9.MapMode = "FlatFace"
sketch9.AttachmentOffset = App.Placement(V(0, 0, 101.4041), App.Rotation())
sketch9.addGeometry([
    Part.Circle(V(-52.7, -60.1, 0), V(0, 0, 1), 0.5),
    Part.Circle(V(-52.7, -40.1, 0), V(0, 0, 1), 0.5),
], False)
sketch9.addConstraint([
    Sketcher.Constraint("Equal", 0, 1),
    Sketcher.Constraint("Vertical", 0, 3, 1, 3),
    Sketcher.Constraint("Diameter", 0, Q("1 mm")),
    Sketcher.Constraint("DistanceY", 0, 3, 1, 3, Q("20 mm")),
    Sketcher.Constraint("DistanceY", 0, 3, -1, 1, Q("60.1 mm")),
    Sketcher.Constraint("DistanceX", 0, 3, -1, 1, Q("52.7346 mm")),
])
sketch9.setExpression("Constraints[2]", "Params.sketch9_diameter")
pocket6 = body.newObject("PartDesign::Pocket", "Pocket005")
pocket6.Profile = sketch9
pocket6.setExpression("Length", "Params.pocket6_length")

doc.recompute()
